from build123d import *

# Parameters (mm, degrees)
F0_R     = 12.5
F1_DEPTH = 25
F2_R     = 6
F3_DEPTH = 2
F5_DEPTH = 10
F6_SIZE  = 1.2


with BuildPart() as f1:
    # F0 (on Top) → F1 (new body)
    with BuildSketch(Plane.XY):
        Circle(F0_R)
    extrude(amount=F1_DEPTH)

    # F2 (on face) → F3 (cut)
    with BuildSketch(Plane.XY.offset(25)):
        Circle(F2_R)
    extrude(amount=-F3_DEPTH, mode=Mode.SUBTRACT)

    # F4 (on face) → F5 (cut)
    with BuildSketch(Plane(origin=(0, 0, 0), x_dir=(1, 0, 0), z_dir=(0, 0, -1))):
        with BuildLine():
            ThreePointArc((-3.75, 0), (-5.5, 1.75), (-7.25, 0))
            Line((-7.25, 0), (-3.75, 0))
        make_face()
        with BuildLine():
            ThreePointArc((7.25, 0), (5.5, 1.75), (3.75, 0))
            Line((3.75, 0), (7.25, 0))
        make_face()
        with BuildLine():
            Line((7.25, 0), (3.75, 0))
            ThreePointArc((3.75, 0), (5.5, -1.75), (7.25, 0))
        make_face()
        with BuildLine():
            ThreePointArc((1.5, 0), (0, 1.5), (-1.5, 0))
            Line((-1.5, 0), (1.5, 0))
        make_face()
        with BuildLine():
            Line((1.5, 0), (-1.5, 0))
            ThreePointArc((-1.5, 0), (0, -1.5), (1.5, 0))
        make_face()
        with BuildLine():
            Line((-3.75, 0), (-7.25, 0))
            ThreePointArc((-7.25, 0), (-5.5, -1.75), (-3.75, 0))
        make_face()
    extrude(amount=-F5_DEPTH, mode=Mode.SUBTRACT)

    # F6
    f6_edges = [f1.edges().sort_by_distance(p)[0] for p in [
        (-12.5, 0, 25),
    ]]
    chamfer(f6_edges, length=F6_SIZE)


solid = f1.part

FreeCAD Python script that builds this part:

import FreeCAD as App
import Part
import Sketcher

V = App.Vector
Q = App.Units.Quantity


def edges_at(feature, points):
    """Names of the edges that pass closest to the given points."""
    edges = feature.Shape.Edges
    near = lambda p: min(range(len(edges)), key=lambda i: edges[i].distToShape(Part.Vertex(*p))[0])
    return sorted({f"Edge{near(p) + 1}" for p in points})

doc = App.newDocument("Part")
body = doc.addObject("PartDesign::Body", "Body")

# Sketch on XY plane
sketch1 = body.newObject("Sketcher::SketchObject", "Sketch")
sketch1.AttachmentSupport = (doc.getObject("XY_Plane"), [""])
sketch1.MapMode = "FlatFace"
sketch1.addGeometry(Part.Circle(V(0, 0, 0), V(0, 0, 1), 12.5), False)
sketch1.addConstraint([
    Sketcher.Constraint("Coincident", 0, 3, -1, 1),
    Sketcher.Constraint("Diameter", 0, Q("25 mm")),
])
pad1 = body.newObject("PartDesign::Pad", "Pad")
pad1.Profile = sketch1
pad1.Length = 25

# Sketch on XY plane
sketch2 = body.newObject("Sketcher::SketchObject", "Sketch001")
sketch2.AttachmentSupport = (doc.getObject("XY_Plane"), [""])
sketch2.MapMode = "FlatFace"
sketch2.AttachmentOffset = App.Placement(V(0, 0, 25), App.Rotation())
sketch2.addGeometry(Part.Circle(V(0, 0, 0), V(0, 0, 1), 6), False)
sketch2.addConstraint([
    Sketcher.Constraint("Coincident", 0, 3, -1, 1),
    Sketcher.Constraint("Diameter", 0, Q("12 mm")),
])
pocket1 = body.newObject("PartDesign::Pocket", "Pocket")
pocket1.Profile = sketch2
pocket1.Length = 2

# Sketch on XY plane
sketch3 = body.newObject("Sketcher::SketchObject", "Sketch002")
sketch3.AttachmentSupport = (doc.getObject("XY_Plane"), [""])
sketch3.MapMode = "FlatFace"
sketch3.addGeometry([
    Part.Circle(V(-5.5, 0, 0), V(0, 0, 1), 1.75),
    Part.Circle(V(5.5, 0, 0), V(0, 0, 1), 1.75),
    Part.Circle(V(0, 0, 0), V(0, 0, 1), 1.5),
], False)
sketch3.addConstraint([
    Sketcher.Constraint("Coincident", 2, 3, -1, 1),
    Sketcher.Constraint("Equal", 0, 1),
    Sketcher.Constraint("Symmetric", 0, 3, 1, 3, -1, 1),
    Sketcher.Constraint("PointOnObject", 0, 3, -1),
    Sketcher.Constraint("Diameter", 2, Q("3 mm")),
    Sketcher.Constraint("Diameter", 0, Q("3.5 mm")),
    Sketcher.Constraint("DistanceX", 0, 3, 1, 3, Q("11 mm")),
])
pocket2 = body.newObject("PartDesign::Pocket", "Pocket001")
pocket2.Profile = sketch3
pocket2.Length = 10
pocket2.Reversed = True
doc.recompute()

chamfer = body.newObject("PartDesign::Chamfer", "Chamfer")
chamfer.Base = (pocket2, edges_at(pocket2, [(-12.5, 0, 25)]))
chamfer.Size = 1.2

doc.recompute()
